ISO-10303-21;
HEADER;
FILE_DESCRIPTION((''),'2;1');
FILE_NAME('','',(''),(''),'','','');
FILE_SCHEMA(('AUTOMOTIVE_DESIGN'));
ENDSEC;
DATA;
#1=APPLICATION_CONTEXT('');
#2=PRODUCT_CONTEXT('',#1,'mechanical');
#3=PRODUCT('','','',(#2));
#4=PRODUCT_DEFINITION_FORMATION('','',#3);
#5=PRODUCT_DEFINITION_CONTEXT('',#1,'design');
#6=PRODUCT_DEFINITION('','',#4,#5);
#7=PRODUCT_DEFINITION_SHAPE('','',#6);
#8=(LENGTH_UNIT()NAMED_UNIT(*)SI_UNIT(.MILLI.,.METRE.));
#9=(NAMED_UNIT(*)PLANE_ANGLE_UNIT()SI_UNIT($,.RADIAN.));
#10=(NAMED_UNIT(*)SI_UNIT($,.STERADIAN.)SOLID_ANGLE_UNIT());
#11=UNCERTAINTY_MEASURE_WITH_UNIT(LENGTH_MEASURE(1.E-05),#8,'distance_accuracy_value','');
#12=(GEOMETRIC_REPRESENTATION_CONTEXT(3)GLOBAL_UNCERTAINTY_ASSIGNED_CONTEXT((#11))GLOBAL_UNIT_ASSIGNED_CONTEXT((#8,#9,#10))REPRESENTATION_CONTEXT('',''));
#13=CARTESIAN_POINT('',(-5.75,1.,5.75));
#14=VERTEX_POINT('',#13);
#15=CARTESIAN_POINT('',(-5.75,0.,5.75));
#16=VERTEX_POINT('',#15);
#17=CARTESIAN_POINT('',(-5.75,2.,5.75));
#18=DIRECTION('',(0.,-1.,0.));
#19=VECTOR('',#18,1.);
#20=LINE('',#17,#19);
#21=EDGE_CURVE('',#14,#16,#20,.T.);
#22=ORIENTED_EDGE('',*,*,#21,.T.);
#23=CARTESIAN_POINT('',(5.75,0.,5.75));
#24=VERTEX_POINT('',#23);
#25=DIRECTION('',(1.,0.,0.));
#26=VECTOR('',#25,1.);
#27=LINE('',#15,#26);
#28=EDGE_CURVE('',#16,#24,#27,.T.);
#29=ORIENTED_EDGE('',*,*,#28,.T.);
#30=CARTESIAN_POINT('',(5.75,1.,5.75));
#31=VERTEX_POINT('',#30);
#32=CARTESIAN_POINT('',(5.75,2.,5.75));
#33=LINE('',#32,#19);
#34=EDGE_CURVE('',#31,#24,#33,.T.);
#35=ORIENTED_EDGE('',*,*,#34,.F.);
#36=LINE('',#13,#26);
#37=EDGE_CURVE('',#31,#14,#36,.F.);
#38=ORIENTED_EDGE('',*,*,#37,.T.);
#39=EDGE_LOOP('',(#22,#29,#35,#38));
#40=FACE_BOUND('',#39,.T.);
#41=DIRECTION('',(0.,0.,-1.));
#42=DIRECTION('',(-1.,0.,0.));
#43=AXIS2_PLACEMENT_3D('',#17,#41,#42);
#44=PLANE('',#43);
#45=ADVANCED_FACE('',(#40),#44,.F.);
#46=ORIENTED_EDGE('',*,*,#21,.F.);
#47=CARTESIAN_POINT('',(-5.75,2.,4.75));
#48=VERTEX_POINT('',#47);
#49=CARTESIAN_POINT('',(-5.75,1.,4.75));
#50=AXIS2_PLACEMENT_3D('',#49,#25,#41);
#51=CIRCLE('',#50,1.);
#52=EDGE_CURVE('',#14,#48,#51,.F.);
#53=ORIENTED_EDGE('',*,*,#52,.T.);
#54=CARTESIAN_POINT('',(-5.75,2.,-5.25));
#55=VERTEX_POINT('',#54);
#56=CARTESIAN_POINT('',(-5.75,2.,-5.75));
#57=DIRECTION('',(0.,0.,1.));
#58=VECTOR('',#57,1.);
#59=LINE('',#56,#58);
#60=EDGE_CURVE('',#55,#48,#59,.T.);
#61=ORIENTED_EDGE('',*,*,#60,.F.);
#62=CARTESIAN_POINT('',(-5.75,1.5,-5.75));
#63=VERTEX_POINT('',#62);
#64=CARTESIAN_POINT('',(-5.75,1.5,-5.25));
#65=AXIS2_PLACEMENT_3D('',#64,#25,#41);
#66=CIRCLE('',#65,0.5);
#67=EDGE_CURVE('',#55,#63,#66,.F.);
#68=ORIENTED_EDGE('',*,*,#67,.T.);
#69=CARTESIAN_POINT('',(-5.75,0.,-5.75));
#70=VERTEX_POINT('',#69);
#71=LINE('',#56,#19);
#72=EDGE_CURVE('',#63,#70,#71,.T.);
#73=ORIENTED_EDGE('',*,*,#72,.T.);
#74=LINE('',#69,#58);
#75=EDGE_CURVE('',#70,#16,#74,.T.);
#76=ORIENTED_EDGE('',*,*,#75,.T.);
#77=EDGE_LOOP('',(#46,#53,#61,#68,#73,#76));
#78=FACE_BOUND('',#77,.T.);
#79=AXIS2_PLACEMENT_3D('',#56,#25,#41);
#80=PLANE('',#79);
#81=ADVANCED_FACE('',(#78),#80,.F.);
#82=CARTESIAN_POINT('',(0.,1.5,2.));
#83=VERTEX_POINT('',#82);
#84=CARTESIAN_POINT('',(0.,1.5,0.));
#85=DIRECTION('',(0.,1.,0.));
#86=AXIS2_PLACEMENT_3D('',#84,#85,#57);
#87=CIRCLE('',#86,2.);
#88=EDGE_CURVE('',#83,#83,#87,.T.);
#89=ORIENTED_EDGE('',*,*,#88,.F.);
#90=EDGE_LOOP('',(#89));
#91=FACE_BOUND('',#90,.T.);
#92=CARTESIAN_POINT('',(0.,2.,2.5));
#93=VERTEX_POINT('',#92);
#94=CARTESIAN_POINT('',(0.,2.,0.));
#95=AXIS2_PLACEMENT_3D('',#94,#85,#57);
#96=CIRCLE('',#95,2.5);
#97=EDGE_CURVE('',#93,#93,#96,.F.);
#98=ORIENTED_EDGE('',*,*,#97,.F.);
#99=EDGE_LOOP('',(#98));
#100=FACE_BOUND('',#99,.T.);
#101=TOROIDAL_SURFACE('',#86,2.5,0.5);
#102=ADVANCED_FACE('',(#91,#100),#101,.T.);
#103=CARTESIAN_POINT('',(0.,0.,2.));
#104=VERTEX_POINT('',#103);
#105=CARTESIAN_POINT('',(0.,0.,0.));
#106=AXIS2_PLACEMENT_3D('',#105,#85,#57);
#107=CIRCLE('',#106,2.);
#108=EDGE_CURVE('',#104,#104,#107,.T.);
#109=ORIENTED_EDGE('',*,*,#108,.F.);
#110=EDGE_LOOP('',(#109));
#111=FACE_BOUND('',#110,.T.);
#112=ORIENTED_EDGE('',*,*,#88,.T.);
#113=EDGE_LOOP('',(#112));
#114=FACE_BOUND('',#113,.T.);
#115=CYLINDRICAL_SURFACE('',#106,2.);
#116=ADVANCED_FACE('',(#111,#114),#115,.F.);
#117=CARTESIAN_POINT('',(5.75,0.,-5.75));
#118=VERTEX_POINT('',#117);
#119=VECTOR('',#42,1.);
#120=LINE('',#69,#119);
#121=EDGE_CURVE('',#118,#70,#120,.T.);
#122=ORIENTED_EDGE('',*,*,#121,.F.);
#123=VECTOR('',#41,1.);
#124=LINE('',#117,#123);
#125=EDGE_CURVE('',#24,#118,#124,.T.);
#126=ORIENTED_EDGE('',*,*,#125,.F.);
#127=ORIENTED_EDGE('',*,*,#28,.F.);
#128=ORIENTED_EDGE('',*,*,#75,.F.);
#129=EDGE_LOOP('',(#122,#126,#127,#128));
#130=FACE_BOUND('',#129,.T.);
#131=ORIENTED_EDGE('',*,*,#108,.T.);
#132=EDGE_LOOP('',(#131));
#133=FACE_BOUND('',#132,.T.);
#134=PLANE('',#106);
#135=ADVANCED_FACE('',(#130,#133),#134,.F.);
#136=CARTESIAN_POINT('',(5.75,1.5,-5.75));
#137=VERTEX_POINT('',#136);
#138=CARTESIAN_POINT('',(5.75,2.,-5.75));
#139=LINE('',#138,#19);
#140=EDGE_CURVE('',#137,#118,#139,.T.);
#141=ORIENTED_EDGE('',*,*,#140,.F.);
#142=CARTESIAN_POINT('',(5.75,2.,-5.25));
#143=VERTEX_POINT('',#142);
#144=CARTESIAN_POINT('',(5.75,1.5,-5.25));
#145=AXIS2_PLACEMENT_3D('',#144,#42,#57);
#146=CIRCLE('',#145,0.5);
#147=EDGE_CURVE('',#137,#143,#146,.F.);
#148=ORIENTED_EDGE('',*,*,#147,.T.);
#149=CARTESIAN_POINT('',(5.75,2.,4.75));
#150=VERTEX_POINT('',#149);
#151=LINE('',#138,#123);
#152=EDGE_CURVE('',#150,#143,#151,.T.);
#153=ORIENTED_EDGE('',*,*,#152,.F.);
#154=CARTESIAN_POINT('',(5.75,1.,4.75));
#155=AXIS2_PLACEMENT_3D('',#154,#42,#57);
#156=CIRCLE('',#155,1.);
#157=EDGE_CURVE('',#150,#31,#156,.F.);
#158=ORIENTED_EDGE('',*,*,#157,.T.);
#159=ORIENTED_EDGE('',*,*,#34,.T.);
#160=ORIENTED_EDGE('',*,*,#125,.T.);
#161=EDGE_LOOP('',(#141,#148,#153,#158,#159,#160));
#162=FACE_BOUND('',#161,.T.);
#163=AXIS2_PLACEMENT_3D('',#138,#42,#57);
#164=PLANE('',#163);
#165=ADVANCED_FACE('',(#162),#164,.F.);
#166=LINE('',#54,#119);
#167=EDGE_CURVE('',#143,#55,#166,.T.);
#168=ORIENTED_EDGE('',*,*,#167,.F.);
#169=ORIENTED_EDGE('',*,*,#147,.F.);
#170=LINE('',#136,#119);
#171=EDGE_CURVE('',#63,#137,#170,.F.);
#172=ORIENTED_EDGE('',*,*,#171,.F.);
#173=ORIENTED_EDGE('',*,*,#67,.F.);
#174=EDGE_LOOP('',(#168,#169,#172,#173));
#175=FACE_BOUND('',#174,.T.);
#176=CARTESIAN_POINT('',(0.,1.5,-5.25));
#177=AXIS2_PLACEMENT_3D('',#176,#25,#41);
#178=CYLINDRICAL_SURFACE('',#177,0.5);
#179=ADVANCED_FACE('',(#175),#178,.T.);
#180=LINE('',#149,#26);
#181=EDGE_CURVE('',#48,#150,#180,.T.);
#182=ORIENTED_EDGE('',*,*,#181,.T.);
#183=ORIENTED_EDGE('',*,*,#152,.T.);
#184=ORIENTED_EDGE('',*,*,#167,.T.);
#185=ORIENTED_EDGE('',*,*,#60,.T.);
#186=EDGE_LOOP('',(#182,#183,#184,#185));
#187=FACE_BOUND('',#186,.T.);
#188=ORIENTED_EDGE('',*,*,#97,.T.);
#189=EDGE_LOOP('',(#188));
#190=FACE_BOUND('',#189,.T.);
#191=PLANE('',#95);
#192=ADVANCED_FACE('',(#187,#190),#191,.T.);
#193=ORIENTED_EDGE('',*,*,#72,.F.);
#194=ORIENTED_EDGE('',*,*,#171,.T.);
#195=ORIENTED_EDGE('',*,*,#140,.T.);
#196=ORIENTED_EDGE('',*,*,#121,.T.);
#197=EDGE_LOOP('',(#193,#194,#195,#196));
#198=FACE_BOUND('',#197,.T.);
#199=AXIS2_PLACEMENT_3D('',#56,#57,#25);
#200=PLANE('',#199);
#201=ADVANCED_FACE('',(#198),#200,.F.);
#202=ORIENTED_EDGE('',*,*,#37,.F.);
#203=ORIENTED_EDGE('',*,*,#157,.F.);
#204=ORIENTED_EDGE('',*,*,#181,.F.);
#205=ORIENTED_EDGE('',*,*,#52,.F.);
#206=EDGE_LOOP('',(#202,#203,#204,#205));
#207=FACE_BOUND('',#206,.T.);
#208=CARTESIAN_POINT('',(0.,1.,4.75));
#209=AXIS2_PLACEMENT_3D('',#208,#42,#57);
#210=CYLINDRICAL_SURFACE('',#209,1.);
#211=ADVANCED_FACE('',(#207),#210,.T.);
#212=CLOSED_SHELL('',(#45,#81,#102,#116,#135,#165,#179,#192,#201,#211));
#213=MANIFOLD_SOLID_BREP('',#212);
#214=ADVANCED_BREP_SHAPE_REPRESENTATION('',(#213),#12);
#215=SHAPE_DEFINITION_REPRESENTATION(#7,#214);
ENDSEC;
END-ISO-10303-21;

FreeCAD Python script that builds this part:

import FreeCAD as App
import Part
import Sketcher
from FreeCAD import Vector
Q = App.Units.Quantity


def edges_at(feature, points):
    """Names of the edges that pass closest to the given points."""
    edges = feature.Shape.Edges
    near = lambda p: min(range(len(edges)), key=lambda i: edges[i].distToShape(Part.Vertex(*p))[0])
    return sorted({f"Edge{near(p) + 1}" for p in points})

doc = App.newDocument("Part")
body = doc.addObject("PartDesign::Body", "Body")

# Sketch on XZ plane
sketch1 = doc.addObject("Sketcher::SketchObject", "Sketch")
body.addObject(sketch1)
sketch1.AttachmentSupport = (doc.XZ_Plane, [""])
sketch1.MapMode = "FlatFace"
sketch1.addGeometry(Part.LineSegment(Vector(-5.75, -5.75, 0), Vector(-5.75, 5.75, 0)), False)
sketch1.addGeometry(Part.LineSegment(Vector(-5.75, 5.75, 0), Vector(5.75, 5.75, 0)), False)
sketch1.addGeometry(Part.LineSegment(Vector(5.75, 5.75, 0), Vector(5.75, -5.75, 0)), False)
sketch1.addGeometry(Part.LineSegment(Vector(5.75, -5.75, 0), Vector(-5.75, -5.75, 0)), False)
sketch1.addConstraint(Sketcher.Constraint("Coincident", 0, 2, 1, 1))
sketch1.addConstraint(Sketcher.Constraint("Coincident", 1, 2, 2, 1))
sketch1.addConstraint(Sketcher.Constraint("Coincident", 2, 2, 3, 1))
sketch1.addConstraint(Sketcher.Constraint("Coincident", 3, 2, 0, 1))
sketch1.addConstraint(Sketcher.Constraint("Vertical", 0))
sketch1.addConstraint(Sketcher.Constraint("Horizontal", 1))
sketch1.addConstraint(Sketcher.Constraint("Vertical", 2))
sketch1.addConstraint(Sketcher.Constraint("Horizontal", 3))
sketch1.addConstraint(Sketcher.Constraint("Symmetric", 0, 2, 2, 2, -1, 1))
sketch1.addConstraint(Sketcher.Constraint("Equal", 3, 0))
sketch1.addConstraint(Sketcher.Constraint("DistanceX", 1, 1, 1, 2, Q("11.5 mm")))
pad1 = doc.addObject("PartDesign::Pad", "Pad")
body.addObject(pad1)
pad1.Profile = sketch1
pad1.Length = 2
pad1.Reversed = True

# Sketch on XZ plane
sketch2 = doc.addObject("Sketcher::SketchObject", "Sketch001")
body.addObject(sketch2)
sketch2.AttachmentSupport = (doc.XZ_Plane, [""])
sketch2.MapMode = "FlatFace"
sketch2.AttachmentOffset = App.Placement(Vector(0, 0, -2), App.Rotation())
sketch2.addGeometry(Part.Circle(Vector(0, 0, 0), Vector(0, 0, 1), 2), False)
sketch2.addConstraint(Sketcher.Constraint("Coincident", 0, 3, -1, 1))
sketch2.addConstraint(Sketcher.Constraint("Diameter", 0, Q("4 mm")))
pocket1 = doc.addObject("PartDesign::Pocket", "Pocket")
body.addObject(pocket1)
pocket1.Profile = sketch2
pocket1.Type = "ThroughAll"
pocket1.Reversed = True
doc.recompute()

fillet = doc.addObject("PartDesign::Fillet", "Fillet")
body.addObject(fillet)
fillet.Base = (pocket1, edges_at(pocket1, [(0, 2, 5.75)]))
fillet.Radius = 1
doc.recompute()

fillet2 = doc.addObject("PartDesign::Fillet", "Fillet001")
body.addObject(fillet2)
fillet2.Base = (fillet, edges_at(fillet, [(0, 2, -5.75)]))
fillet2.Radius = 0.5
doc.recompute()

fillet3 = doc.addObject("PartDesign::Fillet", "Fillet002")
body.addObject(fillet3)
fillet3.Base = (fillet2, edges_at(fillet2, [(-2, 2, 0)]))
fillet3.Radius = 0.5

doc.recompute()
